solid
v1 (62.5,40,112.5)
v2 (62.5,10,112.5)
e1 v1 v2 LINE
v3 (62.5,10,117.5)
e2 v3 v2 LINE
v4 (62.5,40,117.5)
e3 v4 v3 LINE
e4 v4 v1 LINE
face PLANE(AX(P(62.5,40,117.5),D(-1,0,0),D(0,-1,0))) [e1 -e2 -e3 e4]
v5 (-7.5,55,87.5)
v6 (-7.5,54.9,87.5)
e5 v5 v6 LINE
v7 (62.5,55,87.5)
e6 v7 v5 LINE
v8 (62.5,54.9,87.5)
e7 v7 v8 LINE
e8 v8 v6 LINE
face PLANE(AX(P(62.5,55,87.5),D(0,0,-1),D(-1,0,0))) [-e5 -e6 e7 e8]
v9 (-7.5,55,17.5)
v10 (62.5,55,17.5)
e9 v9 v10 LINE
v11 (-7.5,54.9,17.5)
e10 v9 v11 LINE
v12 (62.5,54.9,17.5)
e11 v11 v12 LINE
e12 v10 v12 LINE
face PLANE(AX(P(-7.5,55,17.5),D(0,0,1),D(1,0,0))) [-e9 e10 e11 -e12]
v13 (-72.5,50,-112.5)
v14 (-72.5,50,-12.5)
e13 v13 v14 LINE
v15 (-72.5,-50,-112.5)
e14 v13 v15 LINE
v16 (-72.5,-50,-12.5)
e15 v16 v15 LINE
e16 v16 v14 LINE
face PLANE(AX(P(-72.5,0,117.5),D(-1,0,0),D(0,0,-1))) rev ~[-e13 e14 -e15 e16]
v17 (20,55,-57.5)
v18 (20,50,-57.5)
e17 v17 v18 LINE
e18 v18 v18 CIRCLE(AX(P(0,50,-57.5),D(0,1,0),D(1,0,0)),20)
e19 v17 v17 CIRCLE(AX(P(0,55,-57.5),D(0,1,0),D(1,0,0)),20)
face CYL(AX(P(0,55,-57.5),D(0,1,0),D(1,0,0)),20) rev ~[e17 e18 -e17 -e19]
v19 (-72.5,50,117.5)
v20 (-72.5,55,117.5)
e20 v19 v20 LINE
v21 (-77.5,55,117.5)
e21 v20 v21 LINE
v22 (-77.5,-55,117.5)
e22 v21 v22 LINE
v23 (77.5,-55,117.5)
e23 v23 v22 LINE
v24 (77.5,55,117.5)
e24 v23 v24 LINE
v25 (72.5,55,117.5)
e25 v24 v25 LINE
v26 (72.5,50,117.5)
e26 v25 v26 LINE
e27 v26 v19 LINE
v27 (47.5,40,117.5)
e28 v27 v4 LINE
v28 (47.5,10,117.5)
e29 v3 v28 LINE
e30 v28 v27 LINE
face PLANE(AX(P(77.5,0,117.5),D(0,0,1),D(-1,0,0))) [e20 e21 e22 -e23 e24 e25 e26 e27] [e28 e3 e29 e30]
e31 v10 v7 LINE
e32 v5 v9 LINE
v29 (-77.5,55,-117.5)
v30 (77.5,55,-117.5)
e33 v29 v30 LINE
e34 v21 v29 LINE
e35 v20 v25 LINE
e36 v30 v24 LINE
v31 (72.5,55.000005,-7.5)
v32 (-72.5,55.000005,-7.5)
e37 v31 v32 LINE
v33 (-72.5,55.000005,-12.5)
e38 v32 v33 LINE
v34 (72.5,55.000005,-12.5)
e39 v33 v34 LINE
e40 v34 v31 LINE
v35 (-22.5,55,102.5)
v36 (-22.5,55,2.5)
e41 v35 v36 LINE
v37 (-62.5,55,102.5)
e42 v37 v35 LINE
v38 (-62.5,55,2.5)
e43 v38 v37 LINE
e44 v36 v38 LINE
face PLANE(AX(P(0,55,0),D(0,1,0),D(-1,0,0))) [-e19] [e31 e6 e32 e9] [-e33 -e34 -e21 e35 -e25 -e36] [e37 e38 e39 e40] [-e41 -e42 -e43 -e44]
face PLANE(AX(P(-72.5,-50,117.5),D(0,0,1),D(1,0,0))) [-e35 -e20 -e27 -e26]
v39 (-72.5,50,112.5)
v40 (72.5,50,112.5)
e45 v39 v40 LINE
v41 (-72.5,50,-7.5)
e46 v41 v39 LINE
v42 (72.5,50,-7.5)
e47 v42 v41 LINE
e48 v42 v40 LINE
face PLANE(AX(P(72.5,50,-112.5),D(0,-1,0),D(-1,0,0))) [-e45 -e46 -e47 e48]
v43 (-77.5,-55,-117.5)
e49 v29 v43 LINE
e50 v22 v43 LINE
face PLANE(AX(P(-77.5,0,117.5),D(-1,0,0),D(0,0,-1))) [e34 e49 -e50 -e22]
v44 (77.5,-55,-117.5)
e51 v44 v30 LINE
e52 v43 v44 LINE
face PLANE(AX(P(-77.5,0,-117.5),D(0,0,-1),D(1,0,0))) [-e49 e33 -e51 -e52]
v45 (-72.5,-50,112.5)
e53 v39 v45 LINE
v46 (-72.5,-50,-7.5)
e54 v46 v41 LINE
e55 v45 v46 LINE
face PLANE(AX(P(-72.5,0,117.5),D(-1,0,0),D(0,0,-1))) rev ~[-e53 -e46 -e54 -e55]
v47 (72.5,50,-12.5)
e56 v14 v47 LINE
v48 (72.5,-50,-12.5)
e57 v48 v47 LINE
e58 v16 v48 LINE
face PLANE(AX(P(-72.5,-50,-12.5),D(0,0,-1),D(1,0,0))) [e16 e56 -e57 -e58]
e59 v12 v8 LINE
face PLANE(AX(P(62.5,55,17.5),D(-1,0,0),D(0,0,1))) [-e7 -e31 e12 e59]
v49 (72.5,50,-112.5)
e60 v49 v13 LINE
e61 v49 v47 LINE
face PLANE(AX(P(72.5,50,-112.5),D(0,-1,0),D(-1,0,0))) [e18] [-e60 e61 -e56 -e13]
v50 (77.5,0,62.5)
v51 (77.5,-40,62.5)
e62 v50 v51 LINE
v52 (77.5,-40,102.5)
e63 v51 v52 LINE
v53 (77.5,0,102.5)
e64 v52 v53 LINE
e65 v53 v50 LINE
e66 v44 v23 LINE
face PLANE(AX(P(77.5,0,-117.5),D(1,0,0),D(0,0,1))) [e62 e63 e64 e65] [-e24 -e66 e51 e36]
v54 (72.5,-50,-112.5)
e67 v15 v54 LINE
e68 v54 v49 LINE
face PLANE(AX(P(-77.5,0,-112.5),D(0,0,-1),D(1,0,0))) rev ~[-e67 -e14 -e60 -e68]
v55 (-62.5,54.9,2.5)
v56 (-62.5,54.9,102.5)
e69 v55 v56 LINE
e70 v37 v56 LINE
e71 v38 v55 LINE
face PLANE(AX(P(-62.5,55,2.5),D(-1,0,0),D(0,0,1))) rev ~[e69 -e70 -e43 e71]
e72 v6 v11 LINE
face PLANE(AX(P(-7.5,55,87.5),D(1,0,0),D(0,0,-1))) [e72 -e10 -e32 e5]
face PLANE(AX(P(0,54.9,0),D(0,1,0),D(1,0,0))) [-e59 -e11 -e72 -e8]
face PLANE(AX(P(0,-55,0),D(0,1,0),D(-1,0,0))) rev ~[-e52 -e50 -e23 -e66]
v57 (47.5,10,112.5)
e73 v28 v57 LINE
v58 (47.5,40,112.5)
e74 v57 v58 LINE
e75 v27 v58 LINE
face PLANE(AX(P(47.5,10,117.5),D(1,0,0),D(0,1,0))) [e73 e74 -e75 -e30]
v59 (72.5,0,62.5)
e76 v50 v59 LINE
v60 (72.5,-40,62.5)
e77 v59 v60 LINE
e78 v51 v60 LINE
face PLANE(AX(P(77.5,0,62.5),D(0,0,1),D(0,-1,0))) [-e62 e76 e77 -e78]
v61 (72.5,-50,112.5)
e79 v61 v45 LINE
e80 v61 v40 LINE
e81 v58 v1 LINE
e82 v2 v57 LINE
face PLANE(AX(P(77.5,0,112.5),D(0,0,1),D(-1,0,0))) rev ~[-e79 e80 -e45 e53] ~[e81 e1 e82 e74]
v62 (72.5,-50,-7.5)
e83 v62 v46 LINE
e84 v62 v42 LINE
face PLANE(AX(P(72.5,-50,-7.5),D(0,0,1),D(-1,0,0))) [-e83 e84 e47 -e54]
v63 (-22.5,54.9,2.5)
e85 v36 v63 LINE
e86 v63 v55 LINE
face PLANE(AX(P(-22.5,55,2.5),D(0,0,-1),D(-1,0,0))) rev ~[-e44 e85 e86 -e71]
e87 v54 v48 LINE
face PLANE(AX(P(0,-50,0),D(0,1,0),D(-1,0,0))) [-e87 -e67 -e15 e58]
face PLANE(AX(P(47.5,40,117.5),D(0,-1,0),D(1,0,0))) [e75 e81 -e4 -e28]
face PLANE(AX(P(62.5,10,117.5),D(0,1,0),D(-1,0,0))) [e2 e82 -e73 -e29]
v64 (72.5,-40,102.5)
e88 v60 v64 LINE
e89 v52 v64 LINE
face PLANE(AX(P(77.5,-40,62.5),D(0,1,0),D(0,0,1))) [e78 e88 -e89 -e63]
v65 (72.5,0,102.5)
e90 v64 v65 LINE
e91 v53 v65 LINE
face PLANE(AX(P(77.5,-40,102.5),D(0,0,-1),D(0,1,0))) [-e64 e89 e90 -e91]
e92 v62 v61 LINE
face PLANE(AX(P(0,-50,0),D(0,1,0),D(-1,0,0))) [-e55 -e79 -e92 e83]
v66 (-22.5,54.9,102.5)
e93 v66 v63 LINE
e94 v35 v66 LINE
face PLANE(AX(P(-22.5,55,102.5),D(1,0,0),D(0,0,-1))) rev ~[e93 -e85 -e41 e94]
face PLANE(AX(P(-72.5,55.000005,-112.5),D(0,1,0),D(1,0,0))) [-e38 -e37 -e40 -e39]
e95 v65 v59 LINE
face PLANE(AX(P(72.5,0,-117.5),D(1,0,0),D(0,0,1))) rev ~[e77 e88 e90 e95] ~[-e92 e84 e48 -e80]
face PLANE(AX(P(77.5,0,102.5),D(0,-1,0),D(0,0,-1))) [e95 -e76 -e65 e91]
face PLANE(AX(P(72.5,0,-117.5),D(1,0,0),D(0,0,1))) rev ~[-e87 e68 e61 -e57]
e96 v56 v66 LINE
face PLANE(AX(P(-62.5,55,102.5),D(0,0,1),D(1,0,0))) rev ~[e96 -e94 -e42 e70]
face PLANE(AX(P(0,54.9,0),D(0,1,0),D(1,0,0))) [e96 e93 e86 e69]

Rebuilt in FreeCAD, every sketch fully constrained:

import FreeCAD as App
import Part
import Sketcher
Q = App.Units.Quantity


def faces_at(feature, points):
    """Names of the faces that lie closest to the given points."""
    faces = feature.Shape.Faces
    near = lambda p: min(range(len(faces)), key=lambda i: faces[i].distToShape(Part.Vertex(*p))[0])
    return sorted({f"Face{near(p) + 1}" for p in points})

doc = App.newDocument("Part")
body = doc.addObject("PartDesign::Body", "Body")

# Sketch on XZ plane
sketch1 = doc.addObject("Sketcher::SketchObject", "Sketch")
body.addObject(sketch1)
sketch1.AttachmentSupport = (doc.XZ_Plane, [""])
sketch1.MapMode = "FlatFace"
sketch1.addGeometry(Part.LineSegment(App.Vector(-78, 118, 0), App.Vector(78, 118, 0)), False)
sketch1.addGeometry(Part.LineSegment(App.Vector(78, 118, 0), App.Vector(78, -118, 0)), False)
sketch1.addGeometry(Part.LineSegment(App.Vector(78, -118, 0), App.Vector(-78, -118, 0)), False)
sketch1.addGeometry(Part.LineSegment(App.Vector(-78, -118, 0), App.Vector(-78, 118, 0)), False)
sketch1.addConstraint(Sketcher.Constraint("Coincident", 0, 2, 1, 1))
sketch1.addConstraint(Sketcher.Constraint("Coincident", 1, 2, 2, 1))
sketch1.addConstraint(Sketcher.Constraint("Coincident", 2, 2, 3, 1))
sketch1.addConstraint(Sketcher.Constraint("Coincident", 3, 2, 0, 1))
sketch1.addConstraint(Sketcher.Constraint("Horizontal", 0))
sketch1.addConstraint(Sketcher.Constraint("Vertical", 1))
sketch1.addConstraint(Sketcher.Constraint("Horizontal", 2))
sketch1.addConstraint(Sketcher.Constraint("Vertical", 3))
sketch1.addConstraint(Sketcher.Constraint("Symmetric", 0, 2, 2, 2, -1, 1))
sketch1.addConstraint(Sketcher.Constraint("DistanceX", 0, 1, 0, 2, Q("155 mm")))
sketch1.addConstraint(Sketcher.Constraint("DistanceY", 1, 2, 1, 1, Q("235 mm")))
pad1 = doc.addObject("PartDesign::Pad", "Pad")
body.addObject(pad1)
pad1.Profile = sketch1
pad1.Length = 110
pad1.Midplane = True
doc.recompute()

thickness = doc.addObject("PartDesign::Thickness", "Thickness")
body.addObject(thickness)
thickness.Base = (pad1, faces_at(pad1, [(25.833, 55, 39.167)]))
thickness.Value = 5
thickness.Reversed = True
thickness.Join = "Intersection"

# Sketch on XY plane
sketch2 = doc.addObject("Sketcher::SketchObject", "Sketch001")
body.addObject(sketch2)
sketch2.AttachmentSupport = (doc.XY_Plane, [""])
sketch2.MapMode = "FlatFace"
sketch2.AttachmentOffset = App.Placement(App.Vector(0, 0, -112.5), App.Rotation())
sketch2.addGeometry(Part.LineSegment(App.Vector(-72, 55, 0), App.Vector(-72, 50, 0)), False)
sketch2.addGeometry(Part.LineSegment(App.Vector(-72, 50, 0), App.Vector(72, 50, 0)), False)
sketch2.addGeometry(Part.LineSegment(App.Vector(72, 50, 0), App.Vector(72, 55, 0)), False)
sketch2.addGeometry(Part.LineSegment(App.Vector(72, 55, 0), App.Vector(-72, 55, 0)), False)
sketch2.addConstraint(Sketcher.Constraint("Coincident", 0, 2, 1, 1))
sketch2.addConstraint(Sketcher.Constraint("Coincident", 1, 2, 2, 1))
sketch2.addConstraint(Sketcher.Constraint("Coincident", 2, 2, 3, 1))
sketch2.addConstraint(Sketcher.Constraint("Coincident", 3, 2, 0, 1))
sketch2.addConstraint(Sketcher.Constraint("Vertical", 0))
sketch2.addConstraint(Sketcher.Constraint("Horizontal", 1))
sketch2.addConstraint(Sketcher.Constraint("Vertical", 2))
sketch2.addConstraint(Sketcher.Constraint("Horizontal", 3))
sketch2.addConstraint(Sketcher.Constraint("DistanceY", 0, 2, 0, 1, Q("5 mm")))
sketch2.addConstraint(Sketcher.Constraint("DistanceX", 1, 1, 1, 2, Q("145 mm")))
sketch2.addConstraint(Sketcher.Constraint("DistanceY", -1, 1, 0, 2, Q("50 mm")))
sketch2.addConstraint(Sketcher.Constraint("DistanceX", 0, 2, -1, 1, Q("72.5 mm")))
pad2 = doc.addObject("PartDesign::Pad", "Pad001")
body.addObject(pad2)
pad2.Profile = sketch2
pad2.Type = "UpToLast"

# Sketch on XZ plane
sketch3 = doc.addObject("Sketcher::SketchObject", "Sketch002")
body.addObject(sketch3)
sketch3.AttachmentSupport = (doc.XZ_Plane, [""])
sketch3.MapMode = "FlatFace"
sketch3.AttachmentOffset = App.Placement(App.Vector(0, 0, 50), App.Rotation())
sketch3.addGeometry(Part.LineSegment(App.Vector(-72, -12, 0), App.Vector(-72, -8, 0)), False)
sketch3.addGeometry(Part.LineSegment(App.Vector(-72, -8, 0), App.Vector(72, -8, 0)), False)
sketch3.addGeometry(Part.LineSegment(App.Vector(72, -8, 0), App.Vector(72, -12, 0)), False)
sketch3.addGeometry(Part.LineSegment(App.Vector(72, -12, 0), App.Vector(-72, -12, 0)), False)
sketch3.addConstraint(Sketcher.Constraint("Coincident", 0, 2, 1, 1))
sketch3.addConstraint(Sketcher.Constraint("Coincident", 1, 2, 2, 1))
sketch3.addConstraint(Sketcher.Constraint("Coincident", 2, 2, 3, 1))
sketch3.addConstraint(Sketcher.Constraint("Coincident", 3, 2, 0, 1))
sketch3.addConstraint(Sketcher.Constraint("Vertical", 0))
sketch3.addConstraint(Sketcher.Constraint("Horizontal", 1))
sketch3.addConstraint(Sketcher.Constraint("Vertical", 2))
sketch3.addConstraint(Sketcher.Constraint("Horizontal", 3))
sketch3.addConstraint(Sketcher.Constraint("DistanceY", 0, 1, 0, 2, Q("5 mm")))
sketch3.addConstraint(Sketcher.Constraint("DistanceX", 1, 1, 1, 2, Q("145 mm")))
sketch3.addConstraint(Sketcher.Constraint("DistanceX", 0, 2, -1, 1, Q("72.5 mm")))
sketch3.addConstraint(Sketcher.Constraint("DistanceY", 0, 2, -1, 1, Q("7.5 mm")))
pad3 = doc.addObject("PartDesign::Pad", "Pad002")
body.addObject(pad3)
pad3.Profile = sketch3
pad3.Type = "UpToLast"
pad3.Reversed = True

# Sketch on XZ plane
sketch4 = doc.addObject("Sketcher::SketchObject", "Sketch003")
body.addObject(sketch4)
sketch4.AttachmentSupport = (doc.XZ_Plane, [""])
sketch4.MapMode = "FlatFace"
sketch4.AttachmentOffset = App.Placement(App.Vector(0, 0, -55), App.Rotation())
sketch4.addGeometry(Part.Circle(App.Vector(0, -58, 0), App.Vector(0, 0, 1), 20), False)
sketch4.addConstraint(Sketcher.Constraint("PointOnObject", 0, 3, -2))
sketch4.addConstraint(Sketcher.Constraint("Diameter", 0, Q("40 mm")))
sketch4.addConstraint(Sketcher.Constraint("DistanceY", 0, 3, -1, 1, Q("57.5 mm")))
pocket1 = doc.addObject("PartDesign::Pocket", "Pocket")
body.addObject(pocket1)
pocket1.Profile = sketch4
pocket1.Length = 10
pocket1.Reversed = True

# Sketch on YZ plane
sketch5 = doc.addObject("Sketcher::SketchObject", "Sketch004")
body.addObject(sketch5)
sketch5.AttachmentSupport = (doc.YZ_Plane, [""])
sketch5.MapMode = "FlatFace"
sketch5.AttachmentOffset = App.Placement(App.Vector(0, 0, 77.5), App.Rotation())
sketch5.addGeometry(Part.LineSegment(App.Vector(0, 62, 0), App.Vector(0, 102, 0)), False)
sketch5.addGeometry(Part.LineSegment(App.Vector(0, 102, 0), App.Vector(-40, 102, 0)), False)
sketch5.addGeometry(Part.LineSegment(App.Vector(-40, 102, 0), App.Vector(-40, 62, 0)), False)
sketch5.addGeometry(Part.LineSegment(App.Vector(-40, 62, 0), App.Vector(0, 62, 0)), False)
sketch5.addConstraint(Sketcher.Constraint("Coincident", 0, 2, 1, 1))
sketch5.addConstraint(Sketcher.Constraint("Coincident", 1, 2, 2, 1))
sketch5.addConstraint(Sketcher.Constraint("Coincident", 2, 2, 3, 1))
sketch5.addConstraint(Sketcher.Constraint("Coincident", 3, 2, 0, 1))
sketch5.addConstraint(Sketcher.Constraint("Vertical", 0))
sketch5.addConstraint(Sketcher.Constraint("Horizontal", 1))
sketch5.addConstraint(Sketcher.Constraint("Vertical", 2))
sketch5.addConstraint(Sketcher.Constraint("Horizontal", 3))
sketch5.addConstraint(Sketcher.Constraint("PointOnObject", 0, 2, -2))
sketch5.addConstraint(Sketcher.Constraint("Equal", 3, 0))
sketch5.addConstraint(Sketcher.Constraint("DistanceX", 1, 2, 1, 1, Q("40 mm")))
sketch5.addConstraint(Sketcher.Constraint("DistanceY", -1, 1, 0, 2, Q("102.5 mm")))
pocket2 = doc.addObject("PartDesign::Pocket", "Pocket001")
body.addObject(pocket2)
pocket2.Profile = sketch5
pocket2.Length = 10

# Sketch on XY plane
sketch6 = doc.addObject("Sketcher::SketchObject", "Sketch005")
body.addObject(sketch6)
sketch6.AttachmentSupport = (doc.XY_Plane, [""])
sketch6.MapMode = "FlatFace"
sketch6.AttachmentOffset = App.Placement(App.Vector(0, 0, 117.5), App.Rotation())
sketch6.addGeometry(Part.LineSegment(App.Vector(62, 40, 0), App.Vector(48, 40, 0)), False)
sketch6.addGeometry(Part.LineSegment(App.Vector(48, 40, 0), App.Vector(48, 10, 0)), False)
sketch6.addGeometry(Part.LineSegment(App.Vector(48, 10, 0), App.Vector(62, 10, 0)), False)
sketch6.addGeometry(Part.LineSegment(App.Vector(62, 10, 0), App.Vector(62, 40, 0)), False)
sketch6.addConstraint(Sketcher.Constraint("Coincident", 0, 2, 1, 1))
sketch6.addConstraint(Sketcher.Constraint("Coincident", 1, 2, 2, 1))
sketch6.addConstraint(Sketcher.Constraint("Coincident", 2, 2, 3, 1))
sketch6.addConstraint(Sketcher.Constraint("Coincident", 3, 2, 0, 1))
sketch6.addConstraint(Sketcher.Constraint("Horizontal", 0))
sketch6.addConstraint(Sketcher.Constraint("Vertical", 1))
sketch6.addConstraint(Sketcher.Constraint("Horizontal", 2))
sketch6.addConstraint(Sketcher.Constraint("Vertical", 3))
sketch6.addConstraint(Sketcher.Constraint("DistanceX", 0, 2, 0, 1, Q("15 mm")))
sketch6.addConstraint(Sketcher.Constraint("DistanceY", 1, 2, 1, 1, Q("30 mm")))
sketch6.addConstraint(Sketcher.Constraint("DistanceY", -1, 1, 0, 2, Q("40 mm")))
sketch6.addConstraint(Sketcher.Constraint("DistanceX", -1, 1, 0, 2, Q("47.5 mm")))
pocket3 = doc.addObject("PartDesign::Pocket", "Pocket002")
body.addObject(pocket3)
pocket3.Profile = sketch6
pocket3.Length = 10

# Sketch on XZ plane
sketch7 = doc.addObject("Sketcher::SketchObject", "Sketch006")
body.addObject(sketch7)
sketch7.AttachmentSupport = (doc.XZ_Plane, [""])
sketch7.MapMode = "FlatFace"
sketch7.AttachmentOffset = App.Placement(App.Vector(0, 0, -55), App.Rotation())
sketch7.addGeometry(Part.LineSegment(App.Vector(-8, 88, 0), App.Vector(62, 88, 0)), False)
sketch7.addGeometry(Part.LineSegment(App.Vector(62, 88, 0), App.Vector(62, 18, 0)), False)
sketch7.addGeometry(Part.LineSegment(App.Vector(62, 18, 0), App.Vector(-8, 18, 0)), False)
sketch7.addGeometry(Part.LineSegment(App.Vector(-8, 18, 0), App.Vector(-8, 88, 0)), False)
sketch7.addGeometry(Part.LineSegment(App.Vector(-62, 2, 0), App.Vector(-62, 102, 0)), False)
sketch7.addGeometry(Part.LineSegment(App.Vector(-62, 102, 0), App.Vector(-22, 102, 0)), False)
sketch7.addGeometry(Part.LineSegment(App.Vector(-22, 102, 0), App.Vector(-22, 2, 0)), False)
sketch7.addGeometry(Part.LineSegment(App.Vector(-22, 2, 0), App.Vector(-62, 2, 0)), False)
sketch7.addConstraint(Sketcher.Constraint("Coincident", 0, 2, 1, 1))
sketch7.addConstraint(Sketcher.Constraint("Coincident", 1, 2, 2, 1))
sketch7.addConstraint(Sketcher.Constraint("Coincident", 2, 2, 3, 1))
sketch7.addConstraint(Sketcher.Constraint("Coincident", 3, 2, 0, 1))
sketch7.addConstraint(Sketcher.Constraint("Coincident", 4, 2, 5, 1))
sketch7.addConstraint(Sketcher.Constraint("Coincident", 5, 2, 6, 1))
sketch7.addConstraint(Sketcher.Constraint("Coincident", 6, 2, 7, 1))
sketch7.addConstraint(Sketcher.Constraint("Coincident", 7, 2, 4, 1))
sketch7.addConstraint(Sketcher.Constraint("Horizontal", 0))
sketch7.addConstraint(Sketcher.Constraint("Vertical", 1))
sketch7.addConstraint(Sketcher.Constraint("Horizontal", 2))
sketch7.addConstraint(Sketcher.Constraint("Vertical", 3))
sketch7.addConstraint(Sketcher.Constraint("Vertical", 4))
sketch7.addConstraint(Sketcher.Constraint("Horizontal", 5))
sketch7.addConstraint(Sketcher.Constraint("Vertical", 6))
sketch7.addConstraint(Sketcher.Constraint("Horizontal", 7))
sketch7.addConstraint(Sketcher.Constraint("Equal", 2, 1))
sketch7.addConstraint(Sketcher.Constraint("DistanceX", 0, 1, 0, 2, Q("70 mm")))
sketch7.addConstraint(Sketcher.Constraint("DistanceX", 5, 1, 5, 2, Q("40 mm")))
sketch7.addConstraint(Sketcher.Constraint("DistanceY", 4, 1, 4, 2, Q("100 mm")))
sketch7.addConstraint(Sketcher.Constraint("DistanceY", 3, 2, 4, 2, Q("15 mm")))
sketch7.addConstraint(Sketcher.Constraint("DistanceX", 5, 2, 3, 2, Q("15 mm")))
sketch7.addConstraint(Sketcher.Constraint("DistanceX", -1, 1, 0, 2, Q("62.5 mm")))
sketch7.addConstraint(Sketcher.Constraint("DistanceY", -1, 1, 0, 2, Q("87.5 mm")))
pocket4 = doc.addObject("PartDesign::Pocket", "Pocket003")
body.addObject(pocket4)
pocket4.Profile = sketch7
pocket4.Length = 0.1
pocket4.Reversed = True

doc.recompute()
